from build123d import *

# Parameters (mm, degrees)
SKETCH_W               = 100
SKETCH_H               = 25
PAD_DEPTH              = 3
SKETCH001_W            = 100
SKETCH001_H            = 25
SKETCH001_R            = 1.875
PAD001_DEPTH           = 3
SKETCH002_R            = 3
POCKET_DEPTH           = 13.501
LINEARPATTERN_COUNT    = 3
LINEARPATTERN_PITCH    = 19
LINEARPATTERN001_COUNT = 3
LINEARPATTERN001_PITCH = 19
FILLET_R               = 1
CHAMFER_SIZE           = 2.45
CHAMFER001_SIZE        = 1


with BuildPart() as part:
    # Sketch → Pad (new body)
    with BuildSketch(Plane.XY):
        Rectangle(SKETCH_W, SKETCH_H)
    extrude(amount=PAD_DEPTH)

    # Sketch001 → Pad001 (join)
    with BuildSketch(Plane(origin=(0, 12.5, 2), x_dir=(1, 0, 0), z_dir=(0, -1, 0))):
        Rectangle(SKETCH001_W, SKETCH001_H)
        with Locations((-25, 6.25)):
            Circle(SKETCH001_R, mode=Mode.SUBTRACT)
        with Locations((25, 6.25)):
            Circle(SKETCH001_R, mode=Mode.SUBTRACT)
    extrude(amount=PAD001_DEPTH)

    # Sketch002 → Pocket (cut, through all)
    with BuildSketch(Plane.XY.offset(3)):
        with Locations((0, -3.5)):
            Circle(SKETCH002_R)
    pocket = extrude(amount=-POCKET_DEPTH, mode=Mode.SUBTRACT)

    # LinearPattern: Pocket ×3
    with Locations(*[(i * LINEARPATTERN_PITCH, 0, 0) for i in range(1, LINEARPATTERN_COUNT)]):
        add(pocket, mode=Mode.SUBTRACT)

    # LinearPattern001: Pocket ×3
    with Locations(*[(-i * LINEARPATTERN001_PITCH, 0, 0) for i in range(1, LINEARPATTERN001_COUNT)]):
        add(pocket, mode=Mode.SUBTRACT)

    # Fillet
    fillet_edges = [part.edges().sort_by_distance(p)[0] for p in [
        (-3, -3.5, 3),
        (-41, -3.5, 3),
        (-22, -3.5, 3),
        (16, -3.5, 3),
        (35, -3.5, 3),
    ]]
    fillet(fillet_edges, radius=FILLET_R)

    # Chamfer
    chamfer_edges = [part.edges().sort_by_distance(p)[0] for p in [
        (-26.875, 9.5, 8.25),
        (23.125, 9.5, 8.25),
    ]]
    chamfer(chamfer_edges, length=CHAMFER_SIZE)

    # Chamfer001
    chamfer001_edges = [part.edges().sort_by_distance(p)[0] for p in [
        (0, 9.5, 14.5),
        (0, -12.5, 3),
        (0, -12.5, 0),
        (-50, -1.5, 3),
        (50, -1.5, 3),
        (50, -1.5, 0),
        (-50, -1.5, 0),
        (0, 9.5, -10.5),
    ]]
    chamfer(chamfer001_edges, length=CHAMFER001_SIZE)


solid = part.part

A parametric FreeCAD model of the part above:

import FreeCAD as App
import Part
import Sketcher
from FreeCAD import Vector


def edges_at(feature, points):
    """Names of the edges that pass closest to the given points."""
    edges = feature.Shape.Edges
    near = lambda p: min(range(len(edges)), key=lambda i: edges[i].distToShape(Part.Vertex(*p))[0])
    return sorted({f"Edge{near(p) + 1}" for p in points})

doc = App.newDocument("Part")
body = doc.addObject("PartDesign::Body", "Body")

# Sketch on XY plane
sketch1 = body.newObject("Sketcher::SketchObject", "Sketch")
sketch1.AttachmentSupport = (doc.getObject("XY_Plane"), [""])
sketch1.MapMode = "FlatFace"
sketch1.addGeometry([
    Part.LineSegment(Vector(-50, 12.5, 0), Vector(-50, -12.5, 0)),
    Part.LineSegment(Vector(-50, -12.5, 0), Vector(50, -12.5, 0)),
    Part.LineSegment(Vector(50, -12.5, 0), Vector(50, 12.5, 0)),
    Part.LineSegment(Vector(50, 12.5, 0), Vector(-50, 12.5, 0)),
], False)
sketch1.addConstraint([
    Sketcher.Constraint("Coincident", 0, 2, 1, 1),
    Sketcher.Constraint("Coincident", 1, 2, 2, 1),
    Sketcher.Constraint("Coincident", 2, 2, 3, 1),
    Sketcher.Constraint("Coincident", 3, 2, 0, 1),
    Sketcher.Constraint("Vertical", 0),
    Sketcher.Constraint("Horizontal", 1),
    Sketcher.Constraint("Vertical", 2),
    Sketcher.Constraint("Horizontal", 3),
    Sketcher.Constraint("Symmetric", 0, 2, 2, 2, -1, 1),
    Sketcher.Constraint("DistanceX", 1, 1, 1, 2, 100.0),
    Sketcher.Constraint("DistanceY", 0, 2, 0, 1, 25.0),
])
pad1 = body.newObject("PartDesign::Pad", "Pad")
pad1.Profile = sketch1
pad1.Length = 3

# Sketch on XZ plane
sketch2 = body.newObject("Sketcher::SketchObject", "Sketch001")
sketch2.AttachmentSupport = (doc.getObject("XZ_Plane"), [""])
sketch2.MapMode = "FlatFace"
sketch2.AttachmentOffset = App.Placement(Vector(0, 0, -12.5), App.Rotation())
sketch2.addGeometry([
    Part.LineSegment(Vector(-50, 14.5, 0), Vector(-50, -10.5, 0)),  # 0
    Part.LineSegment(Vector(-50, -10.5, 0), Vector(50, -10.5, 0)),  # 1
    Part.LineSegment(Vector(50, -10.5, 0), Vector(50, 14.5, 0)),  # 2
    Part.LineSegment(Vector(50, 14.5, 0), Vector(-50, 14.5, 0)),  # 3
    Part.Circle(Vector(-25, 8.25, 0), Vector(0, 0, 1), 1.875),  # 4
    Part.Circle(Vector(25, 8.25, 0), Vector(0, 0, 1), 1.875),  # 5
], False)
sketch2.addConstraint([
    Sketcher.Constraint("Coincident", 0, 2, 1, 1),
    Sketcher.Constraint("Coincident", 1, 2, 2, 1),
    Sketcher.Constraint("Coincident", 2, 2, 3, 1),
    Sketcher.Constraint("Coincident", 3, 2, 0, 1),
    Sketcher.Constraint("Vertical", 0),
    Sketcher.Constraint("Horizontal", 1),
    Sketcher.Constraint("Vertical", 2),
    Sketcher.Constraint("Horizontal", 3),
    Sketcher.Constraint("Equal", 4, 5),
    Sketcher.Constraint("Symmetric", 4, 3, 5, 3, -2),
    Sketcher.Constraint("Diameter", 4, 3.75),
    Sketcher.Constraint("DistanceX", 1, 1, 1, 2, 100.0),
    Sketcher.Constraint("DistanceY", 0, 2, 0, 1, 25.0),
    Sketcher.Constraint("DistanceX", 4, 3, -1, 1, 25.0),
    Sketcher.Constraint("DistanceX", 0, 2, -1, 1, 50.0),
    Sketcher.Constraint("DistanceY", 0, 2, -1, 1, 10.5),
    Sketcher.Constraint("DistanceY", -1, 1, 4, 3, 8.25),
])
pad2 = body.newObject("PartDesign::Pad", "Pad001")
pad2.Profile = sketch2
pad2.Length = 3

# Sketch on XY plane
sketch3 = body.newObject("Sketcher::SketchObject", "Sketch002")
sketch3.AttachmentSupport = (doc.getObject("XY_Plane"), [""])
sketch3.MapMode = "FlatFace"
sketch3.AttachmentOffset = App.Placement(Vector(0, 0, 3), App.Rotation())
sketch3.addGeometry(Part.Circle(Vector(0, -3.5, 0), Vector(0, 0, 1), 3), False)
sketch3.addConstraint([
    Sketcher.Constraint("PointOnObject", 0, 3, -2),
    Sketcher.Constraint("Diameter", 0, 6.0),
    Sketcher.Constraint("DistanceY", 0, 3, -1, 1, 3.5),
])
pocket1 = body.newObject("PartDesign::Pocket", "Pocket")
pocket1.Profile = sketch3
pocket1.Type = "ThroughAll"
doc.recompute()

linearpattern = body.newObject("PartDesign::LinearPattern", "LinearPattern")
linearpattern.Originals = [pocket1]
linearpattern.Direction = (doc.getObject("X_Axis"), [""])
linearpattern.Mode = "offset"
linearpattern.Offset = 19
linearpattern.Occurrences = 3
body.Tip = linearpattern
doc.recompute()

linearpattern2 = body.newObject("PartDesign::LinearPattern", "LinearPattern001")
linearpattern2.Originals = [pocket1]
linearpattern2.Direction = (doc.getObject("X_Axis"), [""])
linearpattern2.Mode = "offset"
linearpattern2.Offset = 19
linearpattern2.Occurrences = 3
linearpattern2.Reversed = True
body.Tip = linearpattern2
doc.recompute()

fillet = body.newObject("PartDesign::Fillet", "Fillet")
fillet.Base = (linearpattern2, edges_at(linearpattern2, [
    (-3, -3.5, 3),
    (-41, -3.5, 3),
    (-22, -3.5, 3),
    (16, -3.5, 3),
    (35, -3.5, 3),
]))
fillet.Radius = 1
doc.recompute()

chamfer = body.newObject("PartDesign::Chamfer", "Chamfer")
chamfer.Base = (fillet, edges_at(fillet, [(-26.875, 9.5, 8.25), (23.125, 9.5, 8.25)]))
chamfer.Size = 2.45
doc.recompute()

chamfer2 = body.newObject("PartDesign::Chamfer", "Chamfer001")
chamfer2.Base = (chamfer, edges_at(chamfer, [
    (0, 9.5, 14.5),
    (0, -12.5, 3),
    (0, -12.5, 0),
    (-50, -1.5, 3),
    (50, -1.5, 3),
    (50, -1.5, 0),
    (-50, -1.5, 0),
    (0, 9.5, -10.5),
]))
chamfer2.Size = 1

doc.recompute()
